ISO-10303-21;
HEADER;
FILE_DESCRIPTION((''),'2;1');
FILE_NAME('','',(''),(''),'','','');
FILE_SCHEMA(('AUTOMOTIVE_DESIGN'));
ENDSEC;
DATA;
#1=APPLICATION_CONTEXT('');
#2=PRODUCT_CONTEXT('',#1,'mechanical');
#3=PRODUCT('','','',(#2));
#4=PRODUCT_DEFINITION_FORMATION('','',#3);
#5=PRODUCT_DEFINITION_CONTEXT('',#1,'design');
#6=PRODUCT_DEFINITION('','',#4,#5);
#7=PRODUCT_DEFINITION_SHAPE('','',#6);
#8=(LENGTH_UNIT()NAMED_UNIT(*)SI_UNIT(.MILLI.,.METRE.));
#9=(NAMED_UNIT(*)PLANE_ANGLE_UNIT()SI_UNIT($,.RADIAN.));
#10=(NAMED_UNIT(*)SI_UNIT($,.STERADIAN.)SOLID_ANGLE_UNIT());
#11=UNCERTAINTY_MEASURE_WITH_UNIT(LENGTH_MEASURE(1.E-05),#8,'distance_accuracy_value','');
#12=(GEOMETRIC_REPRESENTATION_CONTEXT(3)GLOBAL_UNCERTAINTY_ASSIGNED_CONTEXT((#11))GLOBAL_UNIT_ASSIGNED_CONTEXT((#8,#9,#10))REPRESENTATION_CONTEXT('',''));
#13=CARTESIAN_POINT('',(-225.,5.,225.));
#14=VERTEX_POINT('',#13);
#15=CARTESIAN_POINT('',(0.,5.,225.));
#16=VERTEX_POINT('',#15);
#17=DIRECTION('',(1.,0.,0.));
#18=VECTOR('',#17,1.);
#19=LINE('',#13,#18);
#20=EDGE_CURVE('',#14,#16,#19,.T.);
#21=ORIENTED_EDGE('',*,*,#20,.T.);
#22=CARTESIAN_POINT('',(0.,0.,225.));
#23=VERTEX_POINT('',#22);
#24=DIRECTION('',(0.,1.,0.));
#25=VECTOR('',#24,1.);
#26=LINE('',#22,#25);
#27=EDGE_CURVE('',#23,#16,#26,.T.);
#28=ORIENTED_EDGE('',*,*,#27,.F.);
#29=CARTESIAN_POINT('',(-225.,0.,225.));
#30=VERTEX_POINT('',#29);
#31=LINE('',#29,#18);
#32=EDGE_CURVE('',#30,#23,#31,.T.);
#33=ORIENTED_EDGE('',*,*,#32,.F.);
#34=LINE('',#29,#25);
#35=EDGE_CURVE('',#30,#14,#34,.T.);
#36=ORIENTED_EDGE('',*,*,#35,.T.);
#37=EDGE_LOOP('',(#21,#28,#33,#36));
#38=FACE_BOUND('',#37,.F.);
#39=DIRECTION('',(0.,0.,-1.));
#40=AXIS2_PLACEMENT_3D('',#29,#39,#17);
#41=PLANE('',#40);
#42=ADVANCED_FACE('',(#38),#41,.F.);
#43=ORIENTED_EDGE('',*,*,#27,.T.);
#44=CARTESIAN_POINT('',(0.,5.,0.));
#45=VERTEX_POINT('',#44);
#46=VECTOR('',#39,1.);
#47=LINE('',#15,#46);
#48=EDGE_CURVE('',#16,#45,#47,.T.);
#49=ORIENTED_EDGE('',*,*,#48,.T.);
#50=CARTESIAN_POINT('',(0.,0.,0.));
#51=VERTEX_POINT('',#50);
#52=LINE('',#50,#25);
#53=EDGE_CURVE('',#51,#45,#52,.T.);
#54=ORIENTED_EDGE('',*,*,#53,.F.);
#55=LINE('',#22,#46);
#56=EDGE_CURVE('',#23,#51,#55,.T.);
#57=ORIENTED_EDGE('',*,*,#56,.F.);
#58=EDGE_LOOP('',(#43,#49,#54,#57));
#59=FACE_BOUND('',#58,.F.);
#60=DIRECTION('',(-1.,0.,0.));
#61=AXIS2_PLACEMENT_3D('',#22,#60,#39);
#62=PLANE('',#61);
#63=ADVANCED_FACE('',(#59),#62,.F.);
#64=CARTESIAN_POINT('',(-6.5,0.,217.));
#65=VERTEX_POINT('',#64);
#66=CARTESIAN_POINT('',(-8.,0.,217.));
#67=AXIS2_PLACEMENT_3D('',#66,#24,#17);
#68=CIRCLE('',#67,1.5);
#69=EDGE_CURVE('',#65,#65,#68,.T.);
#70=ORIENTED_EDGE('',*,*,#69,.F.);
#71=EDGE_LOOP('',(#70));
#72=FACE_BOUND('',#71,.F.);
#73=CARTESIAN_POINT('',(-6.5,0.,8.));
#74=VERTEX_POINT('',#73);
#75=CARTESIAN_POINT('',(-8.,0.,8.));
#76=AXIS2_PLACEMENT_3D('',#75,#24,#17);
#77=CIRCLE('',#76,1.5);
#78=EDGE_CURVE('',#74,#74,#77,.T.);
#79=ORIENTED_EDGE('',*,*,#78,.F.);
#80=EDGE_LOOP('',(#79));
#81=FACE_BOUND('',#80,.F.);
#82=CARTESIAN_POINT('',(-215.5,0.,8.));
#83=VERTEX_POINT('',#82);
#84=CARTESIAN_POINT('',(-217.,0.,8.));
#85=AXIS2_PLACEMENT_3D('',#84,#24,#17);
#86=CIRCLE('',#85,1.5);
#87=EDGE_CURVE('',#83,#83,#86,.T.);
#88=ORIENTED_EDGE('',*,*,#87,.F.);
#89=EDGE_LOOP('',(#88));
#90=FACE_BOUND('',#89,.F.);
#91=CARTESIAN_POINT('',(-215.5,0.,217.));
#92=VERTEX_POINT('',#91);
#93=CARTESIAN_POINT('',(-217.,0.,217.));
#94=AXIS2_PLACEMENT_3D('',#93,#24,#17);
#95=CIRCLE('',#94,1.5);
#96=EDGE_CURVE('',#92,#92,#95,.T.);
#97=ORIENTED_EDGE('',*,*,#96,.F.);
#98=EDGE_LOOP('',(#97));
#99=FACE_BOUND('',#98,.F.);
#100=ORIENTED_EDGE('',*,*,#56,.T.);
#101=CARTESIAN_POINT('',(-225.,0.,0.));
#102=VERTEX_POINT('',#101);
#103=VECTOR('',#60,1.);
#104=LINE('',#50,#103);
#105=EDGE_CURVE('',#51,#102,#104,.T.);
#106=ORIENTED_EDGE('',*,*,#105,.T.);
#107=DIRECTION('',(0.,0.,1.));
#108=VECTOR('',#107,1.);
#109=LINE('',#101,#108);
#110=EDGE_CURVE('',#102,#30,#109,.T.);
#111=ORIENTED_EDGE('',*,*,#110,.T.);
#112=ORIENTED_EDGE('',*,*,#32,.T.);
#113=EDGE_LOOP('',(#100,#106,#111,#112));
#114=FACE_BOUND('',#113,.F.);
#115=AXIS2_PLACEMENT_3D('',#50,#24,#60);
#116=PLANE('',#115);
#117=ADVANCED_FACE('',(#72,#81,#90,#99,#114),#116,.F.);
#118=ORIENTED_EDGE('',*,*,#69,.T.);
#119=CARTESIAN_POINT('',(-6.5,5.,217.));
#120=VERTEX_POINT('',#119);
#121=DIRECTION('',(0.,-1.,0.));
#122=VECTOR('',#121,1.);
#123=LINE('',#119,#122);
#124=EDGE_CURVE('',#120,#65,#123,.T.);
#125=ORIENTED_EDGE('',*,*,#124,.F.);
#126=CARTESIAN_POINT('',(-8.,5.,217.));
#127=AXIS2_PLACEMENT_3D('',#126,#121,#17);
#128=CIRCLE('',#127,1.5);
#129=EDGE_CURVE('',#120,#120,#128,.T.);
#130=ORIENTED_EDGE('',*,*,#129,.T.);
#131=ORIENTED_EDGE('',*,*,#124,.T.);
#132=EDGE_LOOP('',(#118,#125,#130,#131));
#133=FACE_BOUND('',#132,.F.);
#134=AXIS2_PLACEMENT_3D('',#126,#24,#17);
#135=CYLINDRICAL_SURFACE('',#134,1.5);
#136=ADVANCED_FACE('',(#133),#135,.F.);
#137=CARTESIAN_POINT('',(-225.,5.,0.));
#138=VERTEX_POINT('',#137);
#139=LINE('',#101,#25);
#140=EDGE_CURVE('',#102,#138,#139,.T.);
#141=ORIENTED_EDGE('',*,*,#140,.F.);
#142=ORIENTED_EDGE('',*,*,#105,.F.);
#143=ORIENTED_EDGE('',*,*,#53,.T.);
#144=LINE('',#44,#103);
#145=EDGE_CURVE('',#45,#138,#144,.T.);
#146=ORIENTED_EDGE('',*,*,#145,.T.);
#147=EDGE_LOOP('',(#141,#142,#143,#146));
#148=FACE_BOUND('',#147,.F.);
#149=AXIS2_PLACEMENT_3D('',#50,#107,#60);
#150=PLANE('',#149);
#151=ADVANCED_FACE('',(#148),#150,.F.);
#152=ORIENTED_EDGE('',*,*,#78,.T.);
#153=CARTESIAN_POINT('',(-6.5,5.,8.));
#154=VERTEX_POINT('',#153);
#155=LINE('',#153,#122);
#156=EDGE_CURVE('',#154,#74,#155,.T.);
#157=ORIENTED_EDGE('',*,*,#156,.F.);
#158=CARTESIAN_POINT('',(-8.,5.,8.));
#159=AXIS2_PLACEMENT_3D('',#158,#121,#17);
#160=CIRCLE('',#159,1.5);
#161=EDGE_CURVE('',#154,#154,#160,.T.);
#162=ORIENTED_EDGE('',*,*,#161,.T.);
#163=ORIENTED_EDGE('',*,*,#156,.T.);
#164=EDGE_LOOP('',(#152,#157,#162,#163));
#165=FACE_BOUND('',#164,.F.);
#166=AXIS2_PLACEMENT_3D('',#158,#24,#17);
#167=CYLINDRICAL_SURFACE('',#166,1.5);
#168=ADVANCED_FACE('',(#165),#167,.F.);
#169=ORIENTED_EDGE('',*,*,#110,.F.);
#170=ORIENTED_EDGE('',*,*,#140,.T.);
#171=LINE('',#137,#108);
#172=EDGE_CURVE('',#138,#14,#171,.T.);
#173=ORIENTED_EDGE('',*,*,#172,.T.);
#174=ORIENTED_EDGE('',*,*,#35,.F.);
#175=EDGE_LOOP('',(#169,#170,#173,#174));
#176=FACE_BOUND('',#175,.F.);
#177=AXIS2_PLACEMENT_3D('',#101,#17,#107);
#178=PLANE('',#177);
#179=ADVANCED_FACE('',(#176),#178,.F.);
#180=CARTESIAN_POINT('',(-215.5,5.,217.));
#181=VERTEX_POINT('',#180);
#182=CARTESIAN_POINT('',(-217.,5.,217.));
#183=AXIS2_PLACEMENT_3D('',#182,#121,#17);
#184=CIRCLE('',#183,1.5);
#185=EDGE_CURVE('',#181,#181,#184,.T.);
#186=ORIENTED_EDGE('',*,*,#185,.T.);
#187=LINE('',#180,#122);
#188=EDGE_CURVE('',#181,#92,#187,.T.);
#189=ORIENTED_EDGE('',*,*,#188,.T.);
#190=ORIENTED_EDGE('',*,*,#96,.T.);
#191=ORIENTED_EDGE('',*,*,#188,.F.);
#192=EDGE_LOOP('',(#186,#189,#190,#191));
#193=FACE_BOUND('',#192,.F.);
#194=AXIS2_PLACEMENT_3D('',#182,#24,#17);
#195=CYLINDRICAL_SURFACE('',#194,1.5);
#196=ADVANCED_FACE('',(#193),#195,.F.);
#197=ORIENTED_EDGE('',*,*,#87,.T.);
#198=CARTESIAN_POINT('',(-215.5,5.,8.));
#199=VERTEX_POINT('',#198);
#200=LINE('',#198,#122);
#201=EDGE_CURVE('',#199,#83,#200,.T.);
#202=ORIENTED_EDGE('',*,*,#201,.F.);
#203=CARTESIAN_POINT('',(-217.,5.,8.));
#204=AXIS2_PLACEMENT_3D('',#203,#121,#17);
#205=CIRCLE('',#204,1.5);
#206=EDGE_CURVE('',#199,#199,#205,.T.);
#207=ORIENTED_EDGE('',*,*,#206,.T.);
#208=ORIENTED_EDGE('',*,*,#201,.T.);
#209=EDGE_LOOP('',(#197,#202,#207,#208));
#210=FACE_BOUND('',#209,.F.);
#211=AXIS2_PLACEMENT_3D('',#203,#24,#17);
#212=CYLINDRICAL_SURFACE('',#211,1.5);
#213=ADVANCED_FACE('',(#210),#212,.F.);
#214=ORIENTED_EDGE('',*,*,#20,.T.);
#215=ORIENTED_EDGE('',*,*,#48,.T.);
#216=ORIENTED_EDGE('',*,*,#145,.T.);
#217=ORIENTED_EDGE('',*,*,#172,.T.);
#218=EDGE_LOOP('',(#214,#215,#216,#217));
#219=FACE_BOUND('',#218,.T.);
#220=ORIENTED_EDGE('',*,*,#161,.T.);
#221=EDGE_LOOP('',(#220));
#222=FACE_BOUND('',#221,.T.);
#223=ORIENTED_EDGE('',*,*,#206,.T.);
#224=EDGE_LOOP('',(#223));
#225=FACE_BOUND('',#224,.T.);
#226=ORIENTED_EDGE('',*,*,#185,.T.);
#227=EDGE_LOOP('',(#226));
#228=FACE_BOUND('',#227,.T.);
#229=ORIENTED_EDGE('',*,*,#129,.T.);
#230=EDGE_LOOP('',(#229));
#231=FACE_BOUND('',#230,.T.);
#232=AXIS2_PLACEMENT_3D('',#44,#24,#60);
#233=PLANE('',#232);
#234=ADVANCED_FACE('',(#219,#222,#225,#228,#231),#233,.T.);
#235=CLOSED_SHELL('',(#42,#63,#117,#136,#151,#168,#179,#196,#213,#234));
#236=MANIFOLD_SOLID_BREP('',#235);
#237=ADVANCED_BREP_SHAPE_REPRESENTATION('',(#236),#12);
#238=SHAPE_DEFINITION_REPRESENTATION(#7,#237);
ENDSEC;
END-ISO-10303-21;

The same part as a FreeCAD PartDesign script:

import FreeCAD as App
import Part
import Sketcher
from FreeCAD import Vector


def add_polygon(sketch, points):
    """Adds a closed chain of lines whose ends are joined by coincident constraints."""
    first, n = sketch.GeometryCount, len(points)
    for a, b in zip(points, points[1:] + points[:1]):
        sketch.addGeometry(Part.LineSegment(App.Vector(*a, 0), App.Vector(*b, 0)), False)
    for i in range(n):
        sketch.addConstraint(Sketcher.Constraint("Coincident", first + i, 2, first + (i + 1) % n, 1))

doc = App.newDocument("Part")
body = doc.addObject("PartDesign::Body", "Body")

sketch1 = body.newObject("Sketcher::SketchObject", "Sketch")
sketch1.AttachmentSupport = (doc.getObject("XZ_Plane"), [""])
sketch1.MapMode = "FlatFace"
add_polygon(sketch1, [(0, 225), (0, 0), (-225, 0), (-225, 225)])
sketch1.addConstraint([
    Sketcher.Constraint("Vertical", 0),
    Sketcher.Constraint("Horizontal", 1),
    Sketcher.Constraint("Vertical", 2),
    Sketcher.Constraint("Horizontal", 3),
    Sketcher.Constraint("Coincident", 0, 2, -1, 1),
    Sketcher.Constraint("Equal", 3, 0),
    Sketcher.Constraint("DistanceX", 1, 2, 1, 1, 225.0),
])
pad1 = body.newObject("PartDesign::Pad", "Pad")
pad1.Profile = sketch1
pad1.Length = 5
pad1.Reversed = True

sketch2 = body.newObject("Sketcher::SketchObject", "Sketch001")
sketch2.AttachmentSupport = (doc.getObject("XZ_Plane"), [""])
sketch2.MapMode = "FlatFace"
sketch2.AttachmentOffset = App.Placement(Vector(0, 0, -5), App.Rotation())
sketch2.addGeometry([
    Part.Circle(Vector(-217, 8, 0), Vector(0, 0, 1), 1.5),
    Part.Circle(Vector(-8, 8, 0), Vector(0, 0, 1), 1.5),
    Part.Circle(Vector(-217, 217, 0), Vector(0, 0, 1), 1.5),
    Part.Circle(Vector(-8, 217, 0), Vector(0, 0, 1), 1.5),
], False)
sketch2.addConstraint([
    Sketcher.Constraint("Equal", 0, 1),
    Sketcher.Constraint("Equal", 1, 2),
    Sketcher.Constraint("Equal", 2, 3),
    Sketcher.Constraint("Horizontal", 0, 3, 1, 3),
    Sketcher.Constraint("Horizontal", 2, 3, 3, 3),
    Sketcher.Constraint("Vertical", 0, 3, 2, 3),
    Sketcher.Constraint("Vertical", 1, 3, 3, 3),
    Sketcher.Constraint("Diameter", 0, 3.0),
    Sketcher.Constraint("DistanceX", 0, 3, 1, 3, 209.0),
    Sketcher.Constraint("DistanceY", 0, 3, 2, 3, 209.0),
    Sketcher.Constraint("DistanceX", 0, 3, -1, 1, 217.0),
    Sketcher.Constraint("DistanceY", -1, 1, 0, 3, 8.0),
])
pocket1 = body.newObject("PartDesign::Pocket", "Pocket")
pocket1.Profile = sketch2
pocket1.Length = 5
pocket1.Reversed = True

doc.recompute()
